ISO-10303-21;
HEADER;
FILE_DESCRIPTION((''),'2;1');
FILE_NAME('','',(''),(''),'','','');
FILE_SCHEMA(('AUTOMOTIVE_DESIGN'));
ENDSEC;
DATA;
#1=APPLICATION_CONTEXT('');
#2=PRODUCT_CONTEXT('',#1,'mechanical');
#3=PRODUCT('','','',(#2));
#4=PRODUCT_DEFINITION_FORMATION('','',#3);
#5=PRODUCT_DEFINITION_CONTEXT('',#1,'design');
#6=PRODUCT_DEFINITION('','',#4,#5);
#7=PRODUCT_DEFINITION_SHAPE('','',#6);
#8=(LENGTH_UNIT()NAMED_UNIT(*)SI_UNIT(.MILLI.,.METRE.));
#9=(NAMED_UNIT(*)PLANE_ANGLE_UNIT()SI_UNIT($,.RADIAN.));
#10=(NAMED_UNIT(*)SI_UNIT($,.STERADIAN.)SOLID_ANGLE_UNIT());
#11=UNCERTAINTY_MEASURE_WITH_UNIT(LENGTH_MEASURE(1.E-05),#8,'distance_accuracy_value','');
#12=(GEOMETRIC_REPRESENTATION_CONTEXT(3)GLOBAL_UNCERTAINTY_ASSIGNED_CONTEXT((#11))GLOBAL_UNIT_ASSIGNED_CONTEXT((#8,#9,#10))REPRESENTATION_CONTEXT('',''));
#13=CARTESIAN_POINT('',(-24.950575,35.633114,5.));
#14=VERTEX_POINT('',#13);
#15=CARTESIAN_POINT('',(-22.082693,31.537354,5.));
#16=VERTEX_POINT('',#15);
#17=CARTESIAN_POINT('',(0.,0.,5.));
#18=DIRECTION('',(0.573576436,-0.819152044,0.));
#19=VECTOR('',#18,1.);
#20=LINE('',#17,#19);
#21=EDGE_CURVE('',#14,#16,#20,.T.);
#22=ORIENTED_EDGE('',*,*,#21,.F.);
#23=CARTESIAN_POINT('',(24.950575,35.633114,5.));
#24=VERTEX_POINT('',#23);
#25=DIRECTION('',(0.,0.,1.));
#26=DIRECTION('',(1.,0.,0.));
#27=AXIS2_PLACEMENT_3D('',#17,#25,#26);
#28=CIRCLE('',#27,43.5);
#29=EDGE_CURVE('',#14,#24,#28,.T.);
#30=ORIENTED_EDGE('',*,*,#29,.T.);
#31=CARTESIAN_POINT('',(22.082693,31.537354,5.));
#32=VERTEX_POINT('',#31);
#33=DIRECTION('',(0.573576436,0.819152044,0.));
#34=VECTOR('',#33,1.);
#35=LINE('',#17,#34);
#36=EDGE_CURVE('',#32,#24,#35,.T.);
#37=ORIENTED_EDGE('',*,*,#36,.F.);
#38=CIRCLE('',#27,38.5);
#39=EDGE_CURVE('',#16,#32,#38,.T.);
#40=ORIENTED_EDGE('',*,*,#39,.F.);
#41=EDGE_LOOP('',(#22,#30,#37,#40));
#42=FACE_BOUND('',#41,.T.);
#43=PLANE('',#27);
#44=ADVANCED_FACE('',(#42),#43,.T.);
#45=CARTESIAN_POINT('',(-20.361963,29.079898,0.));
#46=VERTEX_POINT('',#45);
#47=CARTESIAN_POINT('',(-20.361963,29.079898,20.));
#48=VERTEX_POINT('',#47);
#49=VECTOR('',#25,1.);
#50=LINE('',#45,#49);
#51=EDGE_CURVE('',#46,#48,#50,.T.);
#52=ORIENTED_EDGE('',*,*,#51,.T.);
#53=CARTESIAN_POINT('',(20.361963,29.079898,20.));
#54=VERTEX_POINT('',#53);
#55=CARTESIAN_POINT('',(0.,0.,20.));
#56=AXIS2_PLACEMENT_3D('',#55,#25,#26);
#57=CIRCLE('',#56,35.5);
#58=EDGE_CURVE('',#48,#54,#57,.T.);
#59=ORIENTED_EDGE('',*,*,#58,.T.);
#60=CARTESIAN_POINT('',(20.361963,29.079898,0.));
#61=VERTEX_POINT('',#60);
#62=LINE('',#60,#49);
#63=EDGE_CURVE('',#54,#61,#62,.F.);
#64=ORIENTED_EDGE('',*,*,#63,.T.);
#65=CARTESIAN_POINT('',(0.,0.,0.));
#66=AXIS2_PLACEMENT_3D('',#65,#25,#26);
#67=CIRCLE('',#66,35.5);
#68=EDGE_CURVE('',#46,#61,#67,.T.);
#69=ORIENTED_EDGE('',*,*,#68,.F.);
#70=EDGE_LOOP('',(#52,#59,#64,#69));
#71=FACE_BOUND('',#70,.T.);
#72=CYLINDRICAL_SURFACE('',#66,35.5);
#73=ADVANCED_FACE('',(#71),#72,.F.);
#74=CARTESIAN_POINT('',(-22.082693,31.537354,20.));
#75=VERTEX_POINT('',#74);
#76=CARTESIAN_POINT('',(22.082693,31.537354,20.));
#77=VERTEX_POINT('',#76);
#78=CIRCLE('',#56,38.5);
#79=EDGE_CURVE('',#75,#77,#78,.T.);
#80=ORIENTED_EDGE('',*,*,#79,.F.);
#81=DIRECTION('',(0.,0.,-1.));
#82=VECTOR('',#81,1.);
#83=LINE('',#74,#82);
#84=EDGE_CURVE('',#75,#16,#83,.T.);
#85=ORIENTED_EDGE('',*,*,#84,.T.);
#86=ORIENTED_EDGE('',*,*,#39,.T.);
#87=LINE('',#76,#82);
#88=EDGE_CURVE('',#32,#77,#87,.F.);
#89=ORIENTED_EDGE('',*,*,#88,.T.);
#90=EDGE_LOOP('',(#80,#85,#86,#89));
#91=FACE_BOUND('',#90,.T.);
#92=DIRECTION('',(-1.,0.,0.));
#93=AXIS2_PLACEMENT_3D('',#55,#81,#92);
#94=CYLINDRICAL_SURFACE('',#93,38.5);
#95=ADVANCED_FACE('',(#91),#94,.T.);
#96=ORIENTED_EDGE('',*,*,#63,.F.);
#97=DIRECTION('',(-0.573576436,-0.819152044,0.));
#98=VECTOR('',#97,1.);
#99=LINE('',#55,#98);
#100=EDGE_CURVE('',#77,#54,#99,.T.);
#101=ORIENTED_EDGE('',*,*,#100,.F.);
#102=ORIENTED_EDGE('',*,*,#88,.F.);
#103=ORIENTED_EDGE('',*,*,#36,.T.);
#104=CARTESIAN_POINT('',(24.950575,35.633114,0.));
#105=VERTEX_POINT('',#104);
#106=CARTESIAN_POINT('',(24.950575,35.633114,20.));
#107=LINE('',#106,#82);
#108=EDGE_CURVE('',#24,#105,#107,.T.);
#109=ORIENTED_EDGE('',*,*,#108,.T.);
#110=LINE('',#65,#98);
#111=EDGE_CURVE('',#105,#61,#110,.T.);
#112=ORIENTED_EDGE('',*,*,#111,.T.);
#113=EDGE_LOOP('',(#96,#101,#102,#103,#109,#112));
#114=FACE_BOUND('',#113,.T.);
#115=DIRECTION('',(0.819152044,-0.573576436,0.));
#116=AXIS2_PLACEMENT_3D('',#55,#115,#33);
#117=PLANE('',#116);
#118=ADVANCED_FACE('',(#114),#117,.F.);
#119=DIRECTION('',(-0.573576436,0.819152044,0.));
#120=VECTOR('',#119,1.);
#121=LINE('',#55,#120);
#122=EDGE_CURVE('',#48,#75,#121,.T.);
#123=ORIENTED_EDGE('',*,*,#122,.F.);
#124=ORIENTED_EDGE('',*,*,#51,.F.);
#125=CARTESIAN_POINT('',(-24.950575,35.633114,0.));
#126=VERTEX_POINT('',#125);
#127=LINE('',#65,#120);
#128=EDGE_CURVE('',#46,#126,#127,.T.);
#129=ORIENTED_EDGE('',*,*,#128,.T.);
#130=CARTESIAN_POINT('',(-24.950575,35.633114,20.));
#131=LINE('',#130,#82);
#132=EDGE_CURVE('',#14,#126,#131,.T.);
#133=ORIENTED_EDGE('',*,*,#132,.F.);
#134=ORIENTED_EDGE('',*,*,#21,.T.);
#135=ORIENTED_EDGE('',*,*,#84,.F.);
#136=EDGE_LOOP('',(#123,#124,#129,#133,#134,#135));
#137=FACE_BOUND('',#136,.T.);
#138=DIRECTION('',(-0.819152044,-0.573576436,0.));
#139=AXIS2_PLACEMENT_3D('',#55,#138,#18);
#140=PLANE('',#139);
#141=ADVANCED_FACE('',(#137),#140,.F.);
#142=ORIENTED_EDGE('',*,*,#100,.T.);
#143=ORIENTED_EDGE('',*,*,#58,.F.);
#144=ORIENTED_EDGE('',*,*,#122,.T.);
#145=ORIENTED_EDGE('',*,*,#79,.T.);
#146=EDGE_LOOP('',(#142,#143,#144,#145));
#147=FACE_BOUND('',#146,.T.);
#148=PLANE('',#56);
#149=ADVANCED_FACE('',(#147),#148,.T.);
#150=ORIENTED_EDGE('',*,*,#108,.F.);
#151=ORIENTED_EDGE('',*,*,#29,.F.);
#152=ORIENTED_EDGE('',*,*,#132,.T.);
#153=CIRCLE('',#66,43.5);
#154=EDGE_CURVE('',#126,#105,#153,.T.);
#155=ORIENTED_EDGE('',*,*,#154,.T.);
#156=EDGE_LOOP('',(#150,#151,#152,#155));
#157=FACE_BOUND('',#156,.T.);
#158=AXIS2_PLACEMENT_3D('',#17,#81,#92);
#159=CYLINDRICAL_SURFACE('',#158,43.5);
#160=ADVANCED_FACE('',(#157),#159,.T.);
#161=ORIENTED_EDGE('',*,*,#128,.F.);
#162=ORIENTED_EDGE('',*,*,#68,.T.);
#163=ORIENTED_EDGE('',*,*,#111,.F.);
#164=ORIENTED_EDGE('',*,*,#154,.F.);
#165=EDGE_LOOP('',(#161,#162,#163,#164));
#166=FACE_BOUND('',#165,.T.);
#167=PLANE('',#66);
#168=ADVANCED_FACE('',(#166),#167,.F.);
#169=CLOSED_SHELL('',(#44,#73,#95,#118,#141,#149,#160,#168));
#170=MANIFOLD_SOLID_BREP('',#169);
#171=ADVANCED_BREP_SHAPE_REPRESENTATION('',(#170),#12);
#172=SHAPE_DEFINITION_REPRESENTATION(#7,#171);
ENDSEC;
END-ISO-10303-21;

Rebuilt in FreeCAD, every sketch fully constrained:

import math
import FreeCAD as App
import Part
import Sketcher
Q = App.Units.Quantity

doc = App.newDocument("Part")
params = doc.addObject("Spreadsheet::Sheet", "Params")
for row, (alias, value) in enumerate([
    ("sketch1_diameter", "87 mm"),
    ("pad1_length", "5 mm"),
    ("sketch2_diameter", "77 mm"),
    ("pad2_length", "15 mm"),
    ("sketch3_diameter", "71 mm"),
    ("sketch4_radius", "43.5 mm"),
], start=1):
    params.set(f"A{row}", alias)
    params.set(f"B{row}", "=" + value)
    params.setAlias(f"B{row}", alias)

body = doc.addObject("PartDesign::Body", "Body")

sketch1 = body.newObject("Sketcher::SketchObject", "Sketch")
sketch1.AttachmentSupport = (doc.getObject("XY_Plane"), [""])
sketch1.MapMode = "FlatFace"
sketch1.addGeometry(Part.Circle(App.Vector(0, 0, 0), App.Vector(0, 0, 1), 44), False)
sketch1.addConstraint([
    Sketcher.Constraint("Coincident", 0, 3, -1, 1),
    Sketcher.Constraint("Diameter", 0, Q("87 mm")),
])
sketch1.setExpression("Constraints[1]", "Params.sketch1_diameter")
pad1 = body.newObject("PartDesign::Pad", "Pad")
pad1.Profile = sketch1
pad1.setExpression("Length", "Params.pad1_length")

sketch2 = body.newObject("Sketcher::SketchObject", "Sketch001")
sketch2.AttachmentSupport = (doc.getObject("XY_Plane"), [""])
sketch2.MapMode = "FlatFace"
sketch2.AttachmentOffset = App.Placement(App.Vector(0, 0, 5), App.Rotation())
sketch2.addGeometry(Part.Circle(App.Vector(0, 0, 0), App.Vector(0, 0, 1), 38), False)
sketch2.addConstraint([
    Sketcher.Constraint("Coincident", 0, 3, -1, 1),
    Sketcher.Constraint("Diameter", 0, Q("77 mm")),
])
sketch2.setExpression("Constraints[1]", "Params.sketch2_diameter")
pad2 = body.newObject("PartDesign::Pad", "Pad001")
pad2.Profile = sketch2
pad2.setExpression("Length", "Params.pad2_length")

sketch3 = body.newObject("Sketcher::SketchObject", "Sketch002")
sketch3.AttachmentSupport = (doc.getObject("XY_Plane"), [""])
sketch3.MapMode = "FlatFace"
sketch3.AttachmentOffset = App.Placement(App.Vector(0, 0, 20), App.Rotation())
sketch3.addGeometry(Part.Circle(App.Vector(0, 0, 0), App.Vector(0, 0, 1), 36), False)
sketch3.addConstraint([
    Sketcher.Constraint("Coincident", 0, 3, -1, 1),
    Sketcher.Constraint("Diameter", 0, Q("71 mm")),
])
sketch3.setExpression("Constraints[1]", "Params.sketch3_diameter")
pocket1 = body.newObject("PartDesign::Pocket", "Pocket")
pocket1.Profile = sketch3
pocket1.Type = "ThroughAll"

sketch4 = body.newObject("Sketcher::SketchObject", "Sketch003")
sketch4.AttachmentSupport = (doc.getObject("XY_Plane"), [""])
sketch4.MapMode = "FlatFace"
sketch4.addGeometry([
    Part.LineSegment(App.Vector(0, 0, 0), App.Vector(-25, 36, 0)),
    Part.ArcOfCircle(Part.Circle(App.Vector(0, 0, 0), App.Vector(0, 0, 1), 44), math.radians(55), math.radians(125)),
    Part.LineSegment(App.Vector(25, 36, 0), App.Vector(0, 0, 0)),
], False)
sketch4.addConstraint([
    Sketcher.Constraint("Coincident", 0, 2, 1, 2),
    Sketcher.Constraint("Coincident", 1, 1, 2, 1),
    Sketcher.Constraint("Coincident", 2, 2, 0, 1),
    Sketcher.Constraint("Coincident", 1, 3, -1, 1),
    Sketcher.Constraint("Coincident", 2, 2, -1, 1),
    Sketcher.Constraint("Horizontal", 0, 2, 1, 1),
    Sketcher.Constraint("Radius", 1, Q("43.5 mm")),
    Sketcher.Constraint("Angle", 0, Q("125 deg")),
])
sketch4.setExpression("Constraints[6]", "Params.sketch4_radius")
pocket2 = body.newObject("PartDesign::Pocket", "Pocket001")
pocket2.Profile = sketch4
pocket2.Type = "ThroughAll"
pocket2.Reversed = True

doc.recompute()
